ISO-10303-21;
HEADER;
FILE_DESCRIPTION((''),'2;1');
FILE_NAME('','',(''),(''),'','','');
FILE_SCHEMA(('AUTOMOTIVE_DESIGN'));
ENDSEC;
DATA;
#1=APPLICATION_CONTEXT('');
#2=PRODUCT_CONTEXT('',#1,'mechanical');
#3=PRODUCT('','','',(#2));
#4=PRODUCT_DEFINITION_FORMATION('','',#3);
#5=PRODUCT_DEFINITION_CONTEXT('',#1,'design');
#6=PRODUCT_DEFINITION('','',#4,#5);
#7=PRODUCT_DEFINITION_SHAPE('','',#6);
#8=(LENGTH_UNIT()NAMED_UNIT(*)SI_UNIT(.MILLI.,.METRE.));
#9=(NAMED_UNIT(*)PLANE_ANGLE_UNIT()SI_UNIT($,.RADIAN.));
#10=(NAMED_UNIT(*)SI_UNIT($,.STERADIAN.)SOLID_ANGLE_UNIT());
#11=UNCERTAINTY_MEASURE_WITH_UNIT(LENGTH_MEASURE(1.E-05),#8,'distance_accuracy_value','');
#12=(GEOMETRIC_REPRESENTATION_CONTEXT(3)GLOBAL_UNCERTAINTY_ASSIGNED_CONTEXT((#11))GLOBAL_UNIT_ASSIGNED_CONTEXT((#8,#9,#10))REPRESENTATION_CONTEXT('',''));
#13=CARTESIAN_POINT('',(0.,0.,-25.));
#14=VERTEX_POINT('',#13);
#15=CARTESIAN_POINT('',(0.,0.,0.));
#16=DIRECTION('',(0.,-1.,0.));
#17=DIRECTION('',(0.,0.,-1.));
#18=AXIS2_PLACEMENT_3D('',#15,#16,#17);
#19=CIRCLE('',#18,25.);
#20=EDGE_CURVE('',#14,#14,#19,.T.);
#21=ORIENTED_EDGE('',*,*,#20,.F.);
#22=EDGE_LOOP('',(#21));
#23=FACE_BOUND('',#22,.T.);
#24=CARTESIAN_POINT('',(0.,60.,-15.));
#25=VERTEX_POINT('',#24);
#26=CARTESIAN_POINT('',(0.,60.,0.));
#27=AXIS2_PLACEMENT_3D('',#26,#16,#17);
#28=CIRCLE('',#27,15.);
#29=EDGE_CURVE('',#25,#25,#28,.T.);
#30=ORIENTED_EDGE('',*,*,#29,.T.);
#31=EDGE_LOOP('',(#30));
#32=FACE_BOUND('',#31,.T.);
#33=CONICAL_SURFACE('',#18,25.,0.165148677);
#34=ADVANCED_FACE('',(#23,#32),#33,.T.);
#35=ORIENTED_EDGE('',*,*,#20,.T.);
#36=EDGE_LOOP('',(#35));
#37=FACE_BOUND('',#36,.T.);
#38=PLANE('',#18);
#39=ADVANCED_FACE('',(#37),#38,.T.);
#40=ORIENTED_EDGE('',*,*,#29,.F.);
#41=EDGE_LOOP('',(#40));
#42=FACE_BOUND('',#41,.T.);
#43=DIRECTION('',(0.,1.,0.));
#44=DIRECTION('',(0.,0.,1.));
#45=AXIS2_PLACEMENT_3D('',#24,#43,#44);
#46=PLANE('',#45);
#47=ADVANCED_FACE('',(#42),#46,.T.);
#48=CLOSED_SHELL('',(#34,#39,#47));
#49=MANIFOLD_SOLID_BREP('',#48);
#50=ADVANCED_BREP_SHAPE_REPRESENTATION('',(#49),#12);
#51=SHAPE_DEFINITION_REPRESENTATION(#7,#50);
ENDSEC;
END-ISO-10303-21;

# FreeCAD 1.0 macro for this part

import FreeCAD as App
import Part
import Sketcher

doc = App.newDocument("Part")
params = doc.addObject("Spreadsheet::Sheet", "Params")
for row, (alias, value) in enumerate([
    ("sketch1_width", "60 mm"),
    ("sketch1_height", "25 mm"),
    ("sketch1_height2", "15 mm"),
    ("revolution_angle", "360 deg"),
], start=1):
    params.set(f"A{row}", alias)
    params.set(f"B{row}", "=" + value)
    params.setAlias(f"B{row}", alias)

body = doc.addObject("PartDesign::Body", "Body")

sketch1 = body.newObject("Sketcher::SketchObject", "Sketch")
sketch1.AttachmentSupport = (doc.getObject("YZ_Plane"), [""])
sketch1.MapMode = "FlatFace"
sketch1.addGeometry(Part.LineSegment(App.Vector(0, 0, 0), App.Vector(0, -25, 0)), False)
sketch1.addGeometry(Part.LineSegment(App.Vector(0, -25, 0), App.Vector(60, -15, 0)), False)
sketch1.addGeometry(Part.LineSegment(App.Vector(60, -15, 0), App.Vector(60, 0, 0)), False)
sketch1.addGeometry(Part.LineSegment(App.Vector(60, 0, 0), App.Vector(0, 0, 0)), False)
sketch1.addConstraint(Sketcher.Constraint("Coincident", 0, 2, 1, 1))
sketch1.addConstraint(Sketcher.Constraint("Coincident", 1, 2, 2, 1))
sketch1.addConstraint(Sketcher.Constraint("Coincident", 2, 2, 3, 1))
sketch1.addConstraint(Sketcher.Constraint("Coincident", 3, 2, 0, 1))
sketch1.addConstraint(Sketcher.Constraint("Vertical", 0))
sketch1.addConstraint(Sketcher.Constraint("Vertical", 2))
sketch1.addConstraint(Sketcher.Constraint("Horizontal", 3))
sketch1.addConstraint(Sketcher.Constraint("Coincident", 3, 2, -1, 1))
sketch1.addConstraint(Sketcher.Constraint("DistanceX", 3, 2, 3, 1, 60.0))
sketch1.addConstraint(Sketcher.Constraint("DistanceY", 0, 2, 0, 1, 25.0))
sketch1.addConstraint(Sketcher.Constraint("DistanceY", 2, 1, 2, 2, 15.0))
sketch1.setExpression("Constraints[8]", "Params.sketch1_width")
sketch1.setExpression("Constraints[9]", "Params.sketch1_height")
sketch1.setExpression("Constraints[10]", "Params.sketch1_height2")
revolution = body.newObject("PartDesign::Revolution", "Revolution")
revolution.Profile = sketch1
revolution.ReferenceAxis = (sketch1, ["H_Axis"])
revolution.setExpression("Angle", "Params.revolution_angle")

doc.recompute()
